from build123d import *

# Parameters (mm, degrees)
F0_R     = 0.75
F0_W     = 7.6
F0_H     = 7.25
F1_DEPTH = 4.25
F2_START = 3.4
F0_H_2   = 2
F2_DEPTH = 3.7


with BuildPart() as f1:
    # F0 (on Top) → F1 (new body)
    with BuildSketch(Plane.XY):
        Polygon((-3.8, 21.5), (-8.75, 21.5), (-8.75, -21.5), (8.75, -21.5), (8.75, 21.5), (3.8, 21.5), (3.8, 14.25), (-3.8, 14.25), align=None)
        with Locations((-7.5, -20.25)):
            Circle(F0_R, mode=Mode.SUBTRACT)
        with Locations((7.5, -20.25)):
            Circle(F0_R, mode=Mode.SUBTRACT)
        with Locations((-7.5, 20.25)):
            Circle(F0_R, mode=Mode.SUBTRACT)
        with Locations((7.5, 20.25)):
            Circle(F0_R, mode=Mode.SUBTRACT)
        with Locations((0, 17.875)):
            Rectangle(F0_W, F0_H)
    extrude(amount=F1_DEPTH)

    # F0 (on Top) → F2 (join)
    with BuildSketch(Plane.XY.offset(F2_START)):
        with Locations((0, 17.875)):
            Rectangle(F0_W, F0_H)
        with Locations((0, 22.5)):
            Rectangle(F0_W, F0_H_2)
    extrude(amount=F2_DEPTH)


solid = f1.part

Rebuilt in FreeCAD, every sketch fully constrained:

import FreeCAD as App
import Part
import Sketcher

V = App.Vector

doc = App.newDocument("Part")
body = doc.addObject("PartDesign::Body", "Body")

# Sketch on XY plane
sketch1 = body.newObject("Sketcher::SketchObject", "Sketch")
sketch1.AttachmentSupport = (doc.getObject("XY_Plane"), [""])
sketch1.MapMode = "FlatFace"
sketch1.addGeometry([
    Part.LineSegment(V(-8.75, 21.5, 0), V(-8.75, -21.5, 0)),  # 0
    Part.LineSegment(V(-8.75, -21.5, 0), V(8.75, -21.5, 0)),  # 1
    Part.LineSegment(V(8.75, -21.5, 0), V(8.75, 21.5, 0)),  # 2
    Part.LineSegment(V(8.75, 21.5, 0), V(-8.75, 21.5, 0)),  # 3
    Part.Circle(V(-7.5, -20.25, 0), V(0, 0, 1), 0.75),  # 4
    Part.Circle(V(7.5, -20.25, 0), V(0, 0, 1), 0.75),  # 5
    Part.Circle(V(-7.5, 20.25, 0), V(0, 0, 1), 0.75),  # 6
    Part.Circle(V(7.5, 20.25, 0), V(0, 0, 1), 0.75),  # 7
], False)
sketch1.addConstraint([
    Sketcher.Constraint("Coincident", 0, 2, 1, 1),
    Sketcher.Constraint("Coincident", 1, 2, 2, 1),
    Sketcher.Constraint("Coincident", 2, 2, 3, 1),
    Sketcher.Constraint("Coincident", 3, 2, 0, 1),
    Sketcher.Constraint("Vertical", 0),
    Sketcher.Constraint("Horizontal", 1),
    Sketcher.Constraint("Vertical", 2),
    Sketcher.Constraint("Horizontal", 3),
    Sketcher.Constraint("Equal", 4, 5),
    Sketcher.Constraint("Equal", 5, 6),
    Sketcher.Constraint("Equal", 6, 7),
    Sketcher.Constraint("Symmetric", 5, 3, 6, 3, -1, 1),
    Sketcher.Constraint("Symmetric", 4, 3, 7, 3, -1, 1),
    Sketcher.Constraint("Symmetric", 0, 2, 2, 2, -1, 1),
    Sketcher.Constraint("Symmetric", 4, 3, 5, 3, -2),
    Sketcher.Constraint("Diameter", 4, 1.5),
    Sketcher.Constraint("DistanceY", 0, 2, 0, 1, 43.0),
    Sketcher.Constraint("DistanceX", 1, 1, 1, 2, 17.5),
    Sketcher.Constraint("DistanceX", 4, 3, 5, 3, 15.0),
    Sketcher.Constraint("DistanceY", 4, 3, 6, 3, 40.5),
])
pad1 = body.newObject("PartDesign::Pad", "Pad")
pad1.Profile = sketch1
pad1.Length = 4.25

# Sketch on XY plane
sketch2 = body.newObject("Sketcher::SketchObject", "Sketch001")
sketch2.AttachmentSupport = (doc.getObject("XY_Plane"), [""])
sketch2.MapMode = "FlatFace"
sketch2.AttachmentOffset = App.Placement(V(0, 0, 3.4), App.Rotation())
sketch2.addGeometry([
    Part.LineSegment(V(-3.8, 14.25, 0), V(3.8, 14.25, 0)),
    Part.LineSegment(V(3.8, 14.25, 0), V(3.8, 23.5, 0)),
    Part.LineSegment(V(3.8, 23.5, 0), V(-3.8, 23.5, 0)),
    Part.LineSegment(V(-3.8, 23.5, 0), V(-3.8, 14.25, 0)),
], False)
sketch2.addConstraint([
    Sketcher.Constraint("Coincident", 0, 2, 1, 1),
    Sketcher.Constraint("Coincident", 1, 2, 2, 1),
    Sketcher.Constraint("Coincident", 2, 2, 3, 1),
    Sketcher.Constraint("Coincident", 3, 2, 0, 1),
    Sketcher.Constraint("Horizontal", 0),
    Sketcher.Constraint("Vertical", 1),
    Sketcher.Constraint("Horizontal", 2),
    Sketcher.Constraint("Vertical", 3),
    Sketcher.Constraint("DistanceX", 0, 1, 0, 2, 7.6),
    Sketcher.Constraint("DistanceY", 1, 1, 1, 2, 9.25),
    Sketcher.Constraint("DistanceX", -1, 1, 0, 2, 3.8),
    Sketcher.Constraint("DistanceY", -1, 1, 1, 2, 23.5),
])
pad2 = body.newObject("PartDesign::Pad", "Pad001")
pad2.Profile = sketch2
pad2.Length = 3.7

doc.recompute()
